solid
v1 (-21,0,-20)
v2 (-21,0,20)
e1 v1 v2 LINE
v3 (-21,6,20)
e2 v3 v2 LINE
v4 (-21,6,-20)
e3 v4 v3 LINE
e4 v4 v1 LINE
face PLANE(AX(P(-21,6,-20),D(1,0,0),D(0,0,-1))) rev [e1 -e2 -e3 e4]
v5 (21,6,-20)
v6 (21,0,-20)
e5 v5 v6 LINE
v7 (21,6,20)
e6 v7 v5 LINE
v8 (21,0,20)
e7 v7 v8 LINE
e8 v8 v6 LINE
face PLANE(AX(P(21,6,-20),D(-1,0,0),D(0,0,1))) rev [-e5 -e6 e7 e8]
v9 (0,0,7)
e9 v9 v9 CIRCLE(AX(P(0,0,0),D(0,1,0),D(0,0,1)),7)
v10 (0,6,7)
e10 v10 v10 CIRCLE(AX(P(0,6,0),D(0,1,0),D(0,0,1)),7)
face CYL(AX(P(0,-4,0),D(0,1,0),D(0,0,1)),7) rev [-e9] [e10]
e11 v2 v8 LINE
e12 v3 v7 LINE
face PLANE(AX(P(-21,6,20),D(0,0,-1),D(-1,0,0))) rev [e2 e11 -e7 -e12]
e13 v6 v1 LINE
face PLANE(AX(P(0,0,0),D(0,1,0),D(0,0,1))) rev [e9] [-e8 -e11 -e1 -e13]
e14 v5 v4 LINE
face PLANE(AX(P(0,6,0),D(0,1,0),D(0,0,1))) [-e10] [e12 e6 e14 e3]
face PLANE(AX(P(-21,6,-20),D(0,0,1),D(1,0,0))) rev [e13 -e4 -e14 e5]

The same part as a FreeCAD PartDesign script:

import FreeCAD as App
import Part
import Sketcher

V = App.Vector
Q = App.Units.Quantity


def add_polygon(sketch, points):
    """Adds a closed chain of lines whose ends are joined by coincident constraints."""
    first, n = sketch.GeometryCount, len(points)
    for a, b in zip(points, points[1:] + points[:1]):
        sketch.addGeometry(Part.LineSegment(App.Vector(*a, 0), App.Vector(*b, 0)), False)
    for i in range(n):
        sketch.addConstraint(Sketcher.Constraint("Coincident", first + i, 2, first + (i + 1) % n, 1))

doc = App.newDocument("Part")
body = doc.addObject("PartDesign::Body", "Body")

sketch1 = doc.addObject("Sketcher::SketchObject", "Sketch")
body.addObject(sketch1)
sketch1.AttachmentSupport = (doc.XZ_Plane, [""])
sketch1.MapMode = "FlatFace"
add_polygon(sketch1, [(-21, -20), (-21, 20), (21, 20), (21, -20)])
sketch1.addConstraint([
    Sketcher.Constraint("Vertical", 0),
    Sketcher.Constraint("Horizontal", 1),
    Sketcher.Constraint("Vertical", 2),
    Sketcher.Constraint("Horizontal", 3),
    Sketcher.Constraint("Symmetric", 0, 2, 2, 2, -1, 1),
    Sketcher.Constraint("DistanceX", 1, 1, 1, 2, Q("42 mm")),
    Sketcher.Constraint("DistanceY", 0, 1, 0, 2, Q("40 mm")),
])
pad1 = doc.addObject("PartDesign::Pad", "Pad")
body.addObject(pad1)
pad1.Profile = sketch1
pad1.Length = 6
pad1.Reversed = True

sketch2 = doc.addObject("Sketcher::SketchObject", "Sketch001")
body.addObject(sketch2)
sketch2.AttachmentSupport = (doc.XZ_Plane, [""])
sketch2.MapMode = "FlatFace"
sketch2.AttachmentOffset = App.Placement(V(0, 0, -6), App.Rotation())
sketch2.addGeometry(Part.Circle(V(0, 0, 0), V(0, 0, 1), 7), False)
sketch2.addConstraint([
    Sketcher.Constraint("Coincident", 0, 3, -1, 1),
    Sketcher.Constraint("Diameter", 0, Q("14 mm")),
])
pocket1 = doc.addObject("PartDesign::Pocket", "Pocket")
body.addObject(pocket1)
pocket1.Profile = sketch2
pocket1.Length = 10
pocket1.Reversed = True

doc.recompute()
